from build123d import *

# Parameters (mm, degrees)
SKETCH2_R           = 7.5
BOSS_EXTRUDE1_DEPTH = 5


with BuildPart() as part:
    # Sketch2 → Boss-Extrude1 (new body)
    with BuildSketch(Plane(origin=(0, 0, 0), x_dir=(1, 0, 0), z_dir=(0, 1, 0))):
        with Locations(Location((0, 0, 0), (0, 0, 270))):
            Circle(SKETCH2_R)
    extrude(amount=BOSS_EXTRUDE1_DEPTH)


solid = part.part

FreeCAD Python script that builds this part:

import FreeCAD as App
import Part
import Sketcher
from FreeCAD import Vector

doc = App.newDocument("Part")
params = doc.addObject("Spreadsheet::Sheet", "Params")
for row, (alias, value) in enumerate([
    ("sketch1_diameter", "15 mm"),
    ("pad1_length", "5 mm"),
], start=1):
    params.set(f"A{row}", alias)
    params.set(f"B{row}", "=" + value)
    params.setAlias(f"B{row}", alias)

body = doc.addObject("PartDesign::Body", "Body")

sketch1 = body.newObject("Sketcher::SketchObject", "Sketch")
sketch1.AttachmentSupport = (doc.getObject("XZ_Plane"), [""])
sketch1.MapMode = "FlatFace"
sketch1.addGeometry(Part.Circle(Vector(0, 0, 0), Vector(0, 0, 1), 8), False)
sketch1.addConstraint([
    Sketcher.Constraint("Coincident", 0, 3, -1, 1),
    Sketcher.Constraint("Diameter", 0, 15.0),
])
sketch1.setExpression("Constraints[1]", "Params.sketch1_diameter")
pad1 = body.newObject("PartDesign::Pad", "Pad")
pad1.Profile = sketch1
pad1.setExpression("Length", "Params.pad1_length")
pad1.Reversed = True

doc.recompute()
